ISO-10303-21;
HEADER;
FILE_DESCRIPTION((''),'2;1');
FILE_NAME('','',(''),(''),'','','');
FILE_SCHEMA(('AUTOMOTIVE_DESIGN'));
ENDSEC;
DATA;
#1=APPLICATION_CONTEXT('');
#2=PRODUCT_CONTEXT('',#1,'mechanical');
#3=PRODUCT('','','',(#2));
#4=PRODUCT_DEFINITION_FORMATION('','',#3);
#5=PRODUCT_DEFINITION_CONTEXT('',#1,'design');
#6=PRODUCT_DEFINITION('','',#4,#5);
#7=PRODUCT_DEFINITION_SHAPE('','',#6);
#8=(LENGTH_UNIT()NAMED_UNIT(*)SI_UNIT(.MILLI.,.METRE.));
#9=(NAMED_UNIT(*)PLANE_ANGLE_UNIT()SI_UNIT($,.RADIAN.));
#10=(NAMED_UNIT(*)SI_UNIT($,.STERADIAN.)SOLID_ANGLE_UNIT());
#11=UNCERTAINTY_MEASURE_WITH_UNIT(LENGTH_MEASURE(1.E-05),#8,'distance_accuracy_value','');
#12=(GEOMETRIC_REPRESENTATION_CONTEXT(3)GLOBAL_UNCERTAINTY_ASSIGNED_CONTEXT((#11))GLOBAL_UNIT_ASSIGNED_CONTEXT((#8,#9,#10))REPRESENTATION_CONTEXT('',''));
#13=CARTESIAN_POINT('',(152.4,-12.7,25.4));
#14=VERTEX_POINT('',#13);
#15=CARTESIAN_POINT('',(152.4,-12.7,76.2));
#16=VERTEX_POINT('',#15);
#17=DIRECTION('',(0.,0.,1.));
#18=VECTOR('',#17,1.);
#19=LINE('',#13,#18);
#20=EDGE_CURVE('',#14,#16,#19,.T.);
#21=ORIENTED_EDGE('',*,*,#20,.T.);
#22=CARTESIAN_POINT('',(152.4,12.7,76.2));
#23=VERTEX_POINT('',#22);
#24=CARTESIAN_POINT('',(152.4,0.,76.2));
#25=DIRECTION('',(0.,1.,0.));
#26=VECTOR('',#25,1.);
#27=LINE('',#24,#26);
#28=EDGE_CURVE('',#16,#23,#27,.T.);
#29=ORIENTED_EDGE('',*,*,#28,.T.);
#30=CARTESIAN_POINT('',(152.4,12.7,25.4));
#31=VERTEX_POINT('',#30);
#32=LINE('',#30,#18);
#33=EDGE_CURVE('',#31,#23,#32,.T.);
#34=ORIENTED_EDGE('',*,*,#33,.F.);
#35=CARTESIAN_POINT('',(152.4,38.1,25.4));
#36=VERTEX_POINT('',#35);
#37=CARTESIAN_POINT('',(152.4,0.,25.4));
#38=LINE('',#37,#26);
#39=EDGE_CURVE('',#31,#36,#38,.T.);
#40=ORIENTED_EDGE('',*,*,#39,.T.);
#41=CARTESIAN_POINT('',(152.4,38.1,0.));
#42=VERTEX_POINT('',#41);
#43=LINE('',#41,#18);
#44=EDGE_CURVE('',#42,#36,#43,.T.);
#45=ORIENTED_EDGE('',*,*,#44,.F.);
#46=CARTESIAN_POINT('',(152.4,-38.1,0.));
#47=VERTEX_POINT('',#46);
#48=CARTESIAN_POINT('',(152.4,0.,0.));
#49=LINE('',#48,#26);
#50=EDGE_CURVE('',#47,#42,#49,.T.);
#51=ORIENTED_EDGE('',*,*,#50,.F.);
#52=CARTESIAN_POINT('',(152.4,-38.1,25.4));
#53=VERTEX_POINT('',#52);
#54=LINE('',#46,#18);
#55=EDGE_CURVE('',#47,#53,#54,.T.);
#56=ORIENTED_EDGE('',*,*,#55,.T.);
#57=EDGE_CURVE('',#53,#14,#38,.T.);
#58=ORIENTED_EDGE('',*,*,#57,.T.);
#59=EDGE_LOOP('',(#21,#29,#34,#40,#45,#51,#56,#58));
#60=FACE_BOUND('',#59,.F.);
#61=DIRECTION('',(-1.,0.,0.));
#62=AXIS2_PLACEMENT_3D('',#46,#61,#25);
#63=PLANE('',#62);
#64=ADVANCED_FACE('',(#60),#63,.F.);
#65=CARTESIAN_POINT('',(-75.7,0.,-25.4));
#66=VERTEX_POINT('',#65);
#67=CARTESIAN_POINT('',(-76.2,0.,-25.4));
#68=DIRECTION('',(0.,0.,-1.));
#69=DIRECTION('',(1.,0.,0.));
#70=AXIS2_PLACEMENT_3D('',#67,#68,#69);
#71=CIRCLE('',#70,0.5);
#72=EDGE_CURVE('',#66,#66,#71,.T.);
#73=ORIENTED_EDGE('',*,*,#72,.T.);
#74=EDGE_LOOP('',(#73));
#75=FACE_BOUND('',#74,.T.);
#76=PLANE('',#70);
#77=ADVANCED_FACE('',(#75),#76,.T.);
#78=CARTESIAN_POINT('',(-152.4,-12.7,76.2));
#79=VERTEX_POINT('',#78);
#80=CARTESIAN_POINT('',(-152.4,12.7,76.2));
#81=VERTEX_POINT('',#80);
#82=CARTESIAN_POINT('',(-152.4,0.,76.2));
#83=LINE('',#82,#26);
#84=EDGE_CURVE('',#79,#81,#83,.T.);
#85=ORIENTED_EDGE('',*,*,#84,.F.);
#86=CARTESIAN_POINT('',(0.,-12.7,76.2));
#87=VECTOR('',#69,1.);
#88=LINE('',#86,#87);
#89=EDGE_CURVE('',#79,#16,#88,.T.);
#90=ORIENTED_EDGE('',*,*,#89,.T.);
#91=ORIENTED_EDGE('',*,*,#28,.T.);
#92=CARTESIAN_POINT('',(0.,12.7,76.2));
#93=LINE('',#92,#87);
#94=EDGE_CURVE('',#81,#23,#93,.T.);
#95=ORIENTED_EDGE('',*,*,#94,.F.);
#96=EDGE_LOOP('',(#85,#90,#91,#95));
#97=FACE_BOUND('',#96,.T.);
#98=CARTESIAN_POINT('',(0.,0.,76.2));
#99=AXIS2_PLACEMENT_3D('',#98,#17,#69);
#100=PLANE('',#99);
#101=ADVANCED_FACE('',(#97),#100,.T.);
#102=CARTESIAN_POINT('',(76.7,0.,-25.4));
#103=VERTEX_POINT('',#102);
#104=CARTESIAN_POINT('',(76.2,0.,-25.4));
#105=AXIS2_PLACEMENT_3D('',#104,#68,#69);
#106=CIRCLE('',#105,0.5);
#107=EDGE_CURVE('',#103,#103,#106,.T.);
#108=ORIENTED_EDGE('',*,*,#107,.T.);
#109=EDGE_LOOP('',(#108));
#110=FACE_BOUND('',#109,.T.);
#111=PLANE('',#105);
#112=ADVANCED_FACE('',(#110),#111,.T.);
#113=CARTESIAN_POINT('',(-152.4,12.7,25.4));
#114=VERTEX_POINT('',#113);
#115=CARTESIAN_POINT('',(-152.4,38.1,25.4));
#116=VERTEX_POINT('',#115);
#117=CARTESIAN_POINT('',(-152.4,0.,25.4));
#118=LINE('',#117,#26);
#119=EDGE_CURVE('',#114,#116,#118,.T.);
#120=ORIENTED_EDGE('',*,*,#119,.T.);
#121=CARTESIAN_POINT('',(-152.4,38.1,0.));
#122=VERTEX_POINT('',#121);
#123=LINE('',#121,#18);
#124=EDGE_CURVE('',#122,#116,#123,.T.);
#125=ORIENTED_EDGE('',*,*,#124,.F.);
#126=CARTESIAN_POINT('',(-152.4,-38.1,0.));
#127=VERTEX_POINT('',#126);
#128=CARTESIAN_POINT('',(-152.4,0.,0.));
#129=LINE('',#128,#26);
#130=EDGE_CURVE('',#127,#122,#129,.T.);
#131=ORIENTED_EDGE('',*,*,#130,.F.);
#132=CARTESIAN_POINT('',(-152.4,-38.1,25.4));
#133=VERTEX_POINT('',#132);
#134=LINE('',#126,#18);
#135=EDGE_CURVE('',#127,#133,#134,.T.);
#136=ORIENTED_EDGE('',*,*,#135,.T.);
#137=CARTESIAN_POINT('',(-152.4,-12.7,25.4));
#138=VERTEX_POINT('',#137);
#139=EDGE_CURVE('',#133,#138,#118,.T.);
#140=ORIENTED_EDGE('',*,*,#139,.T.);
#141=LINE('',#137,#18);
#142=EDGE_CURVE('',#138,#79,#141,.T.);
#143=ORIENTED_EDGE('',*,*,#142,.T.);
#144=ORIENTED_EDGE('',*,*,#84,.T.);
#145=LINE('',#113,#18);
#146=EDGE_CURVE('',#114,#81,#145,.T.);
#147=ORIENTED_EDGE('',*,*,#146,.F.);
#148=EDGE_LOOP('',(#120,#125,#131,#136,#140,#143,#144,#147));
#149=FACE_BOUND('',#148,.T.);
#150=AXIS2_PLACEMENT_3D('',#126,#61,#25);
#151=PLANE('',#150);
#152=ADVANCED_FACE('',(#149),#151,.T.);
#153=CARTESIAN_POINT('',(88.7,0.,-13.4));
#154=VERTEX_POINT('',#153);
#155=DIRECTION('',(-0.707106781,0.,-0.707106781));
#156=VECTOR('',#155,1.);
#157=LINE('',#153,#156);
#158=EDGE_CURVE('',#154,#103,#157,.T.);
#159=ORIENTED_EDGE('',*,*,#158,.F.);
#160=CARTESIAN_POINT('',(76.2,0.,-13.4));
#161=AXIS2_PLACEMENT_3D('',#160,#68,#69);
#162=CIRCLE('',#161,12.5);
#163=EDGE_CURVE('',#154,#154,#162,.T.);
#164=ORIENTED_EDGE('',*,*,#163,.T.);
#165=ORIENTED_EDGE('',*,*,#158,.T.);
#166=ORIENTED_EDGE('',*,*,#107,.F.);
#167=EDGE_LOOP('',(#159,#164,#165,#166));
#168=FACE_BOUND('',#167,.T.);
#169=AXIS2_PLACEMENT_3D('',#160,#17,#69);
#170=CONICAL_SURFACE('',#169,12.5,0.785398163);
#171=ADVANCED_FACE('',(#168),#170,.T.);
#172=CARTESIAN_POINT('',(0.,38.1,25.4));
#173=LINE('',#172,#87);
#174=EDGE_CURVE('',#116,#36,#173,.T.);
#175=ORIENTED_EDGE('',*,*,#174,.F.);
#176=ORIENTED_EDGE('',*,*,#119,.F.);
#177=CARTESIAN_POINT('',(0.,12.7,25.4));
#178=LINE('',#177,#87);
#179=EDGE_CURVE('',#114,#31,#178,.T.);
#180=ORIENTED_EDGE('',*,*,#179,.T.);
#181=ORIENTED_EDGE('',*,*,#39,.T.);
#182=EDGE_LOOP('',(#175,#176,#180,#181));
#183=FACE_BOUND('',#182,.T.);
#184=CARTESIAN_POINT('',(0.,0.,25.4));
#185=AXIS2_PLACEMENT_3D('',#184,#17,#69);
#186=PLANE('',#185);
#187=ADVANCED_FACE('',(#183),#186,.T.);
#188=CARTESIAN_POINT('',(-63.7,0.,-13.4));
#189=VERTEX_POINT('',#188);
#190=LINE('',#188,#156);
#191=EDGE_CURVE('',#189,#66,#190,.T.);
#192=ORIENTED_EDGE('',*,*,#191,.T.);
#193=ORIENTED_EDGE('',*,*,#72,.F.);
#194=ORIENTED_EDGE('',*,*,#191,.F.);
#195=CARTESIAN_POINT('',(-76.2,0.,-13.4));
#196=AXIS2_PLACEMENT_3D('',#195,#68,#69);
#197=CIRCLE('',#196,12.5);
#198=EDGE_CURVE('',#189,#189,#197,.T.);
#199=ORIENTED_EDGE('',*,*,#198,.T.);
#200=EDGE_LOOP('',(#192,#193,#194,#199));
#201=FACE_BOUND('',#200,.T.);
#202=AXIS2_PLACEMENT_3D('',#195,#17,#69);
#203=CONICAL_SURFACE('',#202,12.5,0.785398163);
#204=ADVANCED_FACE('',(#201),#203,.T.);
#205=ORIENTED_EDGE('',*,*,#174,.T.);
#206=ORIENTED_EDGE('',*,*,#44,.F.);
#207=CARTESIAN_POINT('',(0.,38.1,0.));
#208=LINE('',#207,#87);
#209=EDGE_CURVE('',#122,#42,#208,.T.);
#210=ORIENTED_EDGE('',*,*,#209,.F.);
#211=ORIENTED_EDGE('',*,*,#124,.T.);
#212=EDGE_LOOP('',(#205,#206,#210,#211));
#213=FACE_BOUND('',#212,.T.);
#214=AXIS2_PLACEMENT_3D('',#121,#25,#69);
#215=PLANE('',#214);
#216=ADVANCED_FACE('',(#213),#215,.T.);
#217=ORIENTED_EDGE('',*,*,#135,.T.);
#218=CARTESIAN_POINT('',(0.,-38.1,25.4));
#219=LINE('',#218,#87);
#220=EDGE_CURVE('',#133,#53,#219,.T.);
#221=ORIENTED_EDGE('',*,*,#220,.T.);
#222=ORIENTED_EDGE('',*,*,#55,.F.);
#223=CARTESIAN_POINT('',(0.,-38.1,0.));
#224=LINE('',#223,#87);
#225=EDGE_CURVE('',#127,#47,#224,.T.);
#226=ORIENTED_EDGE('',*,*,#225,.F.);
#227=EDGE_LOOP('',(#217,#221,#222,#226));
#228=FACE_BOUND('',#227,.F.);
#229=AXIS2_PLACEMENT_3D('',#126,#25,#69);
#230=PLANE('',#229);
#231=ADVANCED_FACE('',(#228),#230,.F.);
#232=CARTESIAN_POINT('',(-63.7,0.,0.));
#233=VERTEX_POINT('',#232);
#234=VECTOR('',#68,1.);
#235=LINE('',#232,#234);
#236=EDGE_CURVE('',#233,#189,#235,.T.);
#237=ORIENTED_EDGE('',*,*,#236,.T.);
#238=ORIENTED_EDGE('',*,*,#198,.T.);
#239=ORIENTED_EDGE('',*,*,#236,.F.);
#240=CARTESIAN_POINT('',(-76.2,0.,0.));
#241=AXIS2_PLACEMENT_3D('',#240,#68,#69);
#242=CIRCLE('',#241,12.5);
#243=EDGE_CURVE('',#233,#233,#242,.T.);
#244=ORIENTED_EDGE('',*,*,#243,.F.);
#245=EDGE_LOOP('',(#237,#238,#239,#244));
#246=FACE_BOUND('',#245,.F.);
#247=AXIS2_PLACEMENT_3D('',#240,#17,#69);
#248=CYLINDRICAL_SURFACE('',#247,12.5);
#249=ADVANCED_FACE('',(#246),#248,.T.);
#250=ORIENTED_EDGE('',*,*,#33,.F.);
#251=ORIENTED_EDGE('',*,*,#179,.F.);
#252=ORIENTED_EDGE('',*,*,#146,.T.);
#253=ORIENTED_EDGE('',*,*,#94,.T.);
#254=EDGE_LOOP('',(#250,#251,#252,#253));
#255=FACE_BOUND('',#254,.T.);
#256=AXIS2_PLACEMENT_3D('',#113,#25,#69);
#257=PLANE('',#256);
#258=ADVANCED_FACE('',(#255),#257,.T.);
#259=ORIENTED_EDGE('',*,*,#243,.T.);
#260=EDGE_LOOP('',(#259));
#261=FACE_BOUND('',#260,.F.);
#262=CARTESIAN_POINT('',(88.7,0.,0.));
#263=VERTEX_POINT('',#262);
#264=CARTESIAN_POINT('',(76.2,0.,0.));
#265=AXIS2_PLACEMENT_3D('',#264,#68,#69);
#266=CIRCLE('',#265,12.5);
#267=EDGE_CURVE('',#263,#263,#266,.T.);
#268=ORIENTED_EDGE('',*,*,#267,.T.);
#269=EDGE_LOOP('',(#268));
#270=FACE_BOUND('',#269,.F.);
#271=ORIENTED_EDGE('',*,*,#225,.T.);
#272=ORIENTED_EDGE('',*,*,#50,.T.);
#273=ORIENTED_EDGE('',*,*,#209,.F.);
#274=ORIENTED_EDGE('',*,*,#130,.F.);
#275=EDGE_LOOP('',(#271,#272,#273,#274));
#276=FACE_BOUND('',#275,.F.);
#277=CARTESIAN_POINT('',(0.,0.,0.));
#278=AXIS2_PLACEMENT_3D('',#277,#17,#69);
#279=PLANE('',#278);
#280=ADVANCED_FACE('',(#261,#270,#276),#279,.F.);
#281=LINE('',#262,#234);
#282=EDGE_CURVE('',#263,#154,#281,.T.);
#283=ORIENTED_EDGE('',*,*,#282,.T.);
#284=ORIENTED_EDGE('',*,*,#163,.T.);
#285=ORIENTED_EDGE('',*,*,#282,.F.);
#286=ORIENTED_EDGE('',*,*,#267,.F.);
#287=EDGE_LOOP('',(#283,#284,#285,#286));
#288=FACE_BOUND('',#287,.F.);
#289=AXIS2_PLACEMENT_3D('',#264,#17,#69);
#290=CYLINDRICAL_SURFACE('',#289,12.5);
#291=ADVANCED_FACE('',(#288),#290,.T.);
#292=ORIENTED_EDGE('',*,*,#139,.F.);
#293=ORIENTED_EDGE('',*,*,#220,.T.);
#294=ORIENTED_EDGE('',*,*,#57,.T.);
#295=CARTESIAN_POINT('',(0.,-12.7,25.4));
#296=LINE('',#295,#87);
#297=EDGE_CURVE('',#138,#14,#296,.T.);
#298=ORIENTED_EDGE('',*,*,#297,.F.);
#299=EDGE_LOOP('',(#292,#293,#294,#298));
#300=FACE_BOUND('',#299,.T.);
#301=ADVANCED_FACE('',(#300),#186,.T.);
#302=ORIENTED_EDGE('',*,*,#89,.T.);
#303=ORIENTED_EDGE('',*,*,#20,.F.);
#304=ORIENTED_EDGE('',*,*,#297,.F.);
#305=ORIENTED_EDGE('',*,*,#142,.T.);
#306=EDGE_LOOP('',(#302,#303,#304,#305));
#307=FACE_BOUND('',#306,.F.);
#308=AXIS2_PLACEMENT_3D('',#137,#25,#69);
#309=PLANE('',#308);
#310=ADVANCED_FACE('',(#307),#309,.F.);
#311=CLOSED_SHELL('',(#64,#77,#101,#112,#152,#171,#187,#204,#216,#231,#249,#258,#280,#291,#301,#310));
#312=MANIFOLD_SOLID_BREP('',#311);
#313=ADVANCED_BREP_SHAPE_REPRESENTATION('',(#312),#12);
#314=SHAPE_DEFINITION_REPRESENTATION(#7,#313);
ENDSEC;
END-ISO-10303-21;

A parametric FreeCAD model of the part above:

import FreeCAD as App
import Part
import Sketcher
from FreeCAD import Vector
Q = App.Units.Quantity


def edges_at(feature, points):
    """Names of the edges that pass closest to the given points."""
    edges = feature.Shape.Edges
    near = lambda p: min(range(len(edges)), key=lambda i: edges[i].distToShape(Part.Vertex(*p))[0])
    return sorted({f"Edge{near(p) + 1}" for p in points})


def add_polygon(sketch, points):
    """Adds a closed chain of lines whose ends are joined by coincident constraints."""
    first, n = sketch.GeometryCount, len(points)
    for a, b in zip(points, points[1:] + points[:1]):
        sketch.addGeometry(Part.LineSegment(App.Vector(*a, 0), App.Vector(*b, 0)), False)
    for i in range(n):
        sketch.addConstraint(Sketcher.Constraint("Coincident", first + i, 2, first + (i + 1) % n, 1))

doc = App.newDocument("Part")
params = doc.addObject("Spreadsheet::Sheet", "Params")
for row, (alias, value) in enumerate([
    ("sketch1_width", "12 in"),
    ("sketch1_height", "3 in"),
    ("pad1_length", "1 in"),
    ("sketch2_width", "12 in"),
    ("sketch2_height", "1 in"),
    ("pad2_length", "2 in"),
    ("pad3_length", "1 in"),
    ("chamfer_size", "12 mm"),
], start=1):
    params.set(f"A{row}", alias)
    params.set(f"B{row}", "=" + value)
    params.setAlias(f"B{row}", alias)

body = doc.addObject("PartDesign::Body", "Body")

# Sketch on XY plane
sketch1 = body.newObject("Sketcher::SketchObject", "Sketch")
sketch1.AttachmentSupport = (doc.getObject("XY_Plane"), [""])
sketch1.MapMode = "FlatFace"
add_polygon(sketch1, [(-152, 38), (-152, -38), (152, -38), (152, 38)])  # lines 0-3
sketch1.addConstraint([
    Sketcher.Constraint("Vertical", 0),
    Sketcher.Constraint("Horizontal", 1),
    Sketcher.Constraint("Vertical", 2),
    Sketcher.Constraint("Horizontal", 3),
    Sketcher.Constraint("Symmetric", 0, 2, 2, 2, -1, 1),
    Sketcher.Constraint("DistanceX", 1, 1, 1, 2, Q("12 in")),
    Sketcher.Constraint("DistanceY", 0, 2, 0, 1, Q("3 in")),
])
sketch1.setExpression("Constraints[9]", "Params.sketch1_width")
sketch1.setExpression("Constraints[10]", "Params.sketch1_height")
pad1 = body.newObject("PartDesign::Pad", "Pad")
pad1.Profile = sketch1
pad1.setExpression("Length", "Params.pad1_length")

# Sketch on XY plane
sketch2 = body.newObject("Sketcher::SketchObject", "Sketch001")
sketch2.AttachmentSupport = (doc.getObject("XY_Plane"), [""])
sketch2.MapMode = "FlatFace"
sketch2.AttachmentOffset = App.Placement(Vector(0, 0, 1 * 25.4), App.Rotation())
add_polygon(sketch2, [(-152, 13), (-152, -13), (152, -13), (152, 13)])  # lines 0-3
sketch2.addConstraint([
    Sketcher.Constraint("Vertical", 0),
    Sketcher.Constraint("Horizontal", 1),
    Sketcher.Constraint("Vertical", 2),
    Sketcher.Constraint("Horizontal", 3),
    Sketcher.Constraint("Symmetric", 0, 2, 2, 2, -1, 1),
    Sketcher.Constraint("DistanceX", 1, 1, 1, 2, Q("12 in")),
    Sketcher.Constraint("DistanceY", 0, 2, 0, 1, Q("1 in")),
])
sketch2.setExpression("Constraints[9]", "Params.sketch2_width")
sketch2.setExpression("Constraints[10]", "Params.sketch2_height")
pad2 = body.newObject("PartDesign::Pad", "Pad001")
pad2.Profile = sketch2
pad2.setExpression("Length", "Params.pad2_length")

# Sketch on XY plane
sketch3 = body.newObject("Sketcher::SketchObject", "Sketch002")
sketch3.AttachmentSupport = (doc.getObject("XY_Plane"), [""])
sketch3.MapMode = "FlatFace"
sketch3.addGeometry([
    Part.Circle(Vector(-76, 0, 0), Vector(0, 0, 1), 12),
    Part.Circle(Vector(76, 0, 0), Vector(0, 0, 1), 12),
], False)
sketch3.addConstraint([
    Sketcher.Constraint("Equal", 0, 1),
    Sketcher.Constraint("Symmetric", 0, 3, 1, 3, -1, 1),
    Sketcher.Constraint("PointOnObject", 0, 3, -1),
    Sketcher.Constraint("DistanceX", 0, 3, -1, 1, Q("3 in")),
    Sketcher.Constraint("Diameter", 0, Q("25 mm")),
])
pad3 = body.newObject("PartDesign::Pad", "Pad002")
pad3.Profile = sketch3
pad3.setExpression("Length", "Params.pad3_length")
pad3.Reversed = True
doc.recompute()

chamfer = body.newObject("PartDesign::Chamfer", "Chamfer")
chamfer.Base = (pad3, edges_at(pad3, [(-88.7, 0, -25.4), (63.7, 0, -25.4)]))
chamfer.setExpression("Size", "Params.chamfer_size")

doc.recompute()
